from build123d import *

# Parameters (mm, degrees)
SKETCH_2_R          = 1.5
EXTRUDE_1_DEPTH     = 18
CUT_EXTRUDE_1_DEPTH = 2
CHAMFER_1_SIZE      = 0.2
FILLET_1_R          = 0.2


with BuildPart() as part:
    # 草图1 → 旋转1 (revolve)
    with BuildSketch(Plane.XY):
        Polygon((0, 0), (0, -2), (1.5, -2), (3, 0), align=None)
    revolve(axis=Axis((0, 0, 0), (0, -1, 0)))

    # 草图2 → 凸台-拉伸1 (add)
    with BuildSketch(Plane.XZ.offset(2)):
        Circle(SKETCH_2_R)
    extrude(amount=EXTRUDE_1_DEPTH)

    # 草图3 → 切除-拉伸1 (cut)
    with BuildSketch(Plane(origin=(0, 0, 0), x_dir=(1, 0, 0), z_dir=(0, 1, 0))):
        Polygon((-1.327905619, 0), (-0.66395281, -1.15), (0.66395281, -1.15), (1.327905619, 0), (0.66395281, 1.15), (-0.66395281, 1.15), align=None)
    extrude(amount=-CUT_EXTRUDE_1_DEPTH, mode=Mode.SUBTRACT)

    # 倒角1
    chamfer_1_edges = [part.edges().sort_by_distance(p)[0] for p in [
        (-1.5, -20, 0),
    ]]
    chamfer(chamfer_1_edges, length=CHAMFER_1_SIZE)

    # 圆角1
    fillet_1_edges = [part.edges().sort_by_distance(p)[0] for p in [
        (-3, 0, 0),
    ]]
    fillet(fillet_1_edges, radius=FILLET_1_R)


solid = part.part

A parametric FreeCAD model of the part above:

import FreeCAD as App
import Part
import Sketcher

V = App.Vector
Q = App.Units.Quantity


def edges_at(feature, points):
    """Names of the edges that pass closest to the given points."""
    edges = feature.Shape.Edges
    near = lambda p: min(range(len(edges)), key=lambda i: edges[i].distToShape(Part.Vertex(*p))[0])
    return sorted({f"Edge{near(p) + 1}" for p in points})


def add_polygon(sketch, points):
    """Adds a closed chain of lines whose ends are joined by coincident constraints."""
    first, n = sketch.GeometryCount, len(points)
    for a, b in zip(points, points[1:] + points[:1]):
        sketch.addGeometry(Part.LineSegment(App.Vector(*a, 0), App.Vector(*b, 0)), False)
    for i in range(n):
        sketch.addConstraint(Sketcher.Constraint("Coincident", first + i, 2, first + (i + 1) % n, 1))

doc = App.newDocument("Part")
params = doc.addObject("Spreadsheet::Sheet", "Params")
for row, (alias, value) in enumerate([
    ("sketch1_width", "3 mm"),
    ("sketch1_height", "2 mm"),
    ("sketch1_width2", "1.5 mm"),
    ("revolution_angle", "360 deg"),
    ("sketch2_diameter", "3 mm"),
    ("pad1_length", "18 mm"),
    ("pocket1_length", "2 mm"),
    ("chamfer_size", "0.2 mm"),
    ("fillet_radius", "0.2 mm"),
], start=1):
    params.set(f"A{row}", alias)
    params.set(f"B{row}", "=" + value)
    params.setAlias(f"B{row}", alias)

body = doc.addObject("PartDesign::Body", "Body")

sketch1 = body.newObject("Sketcher::SketchObject", "Sketch")
sketch1.AttachmentSupport = (doc.getObject("XY_Plane"), [""])
sketch1.MapMode = "FlatFace"
add_polygon(sketch1, [(0, 0), (0, -2), (1.5, -2), (3, 0)])
sketch1.addConstraint([
    Sketcher.Constraint("Vertical", 0),
    Sketcher.Constraint("Horizontal", 1),
    Sketcher.Constraint("Horizontal", 3),
    Sketcher.Constraint("Coincident", 3, 2, -1, 1),
    Sketcher.Constraint("DistanceX", 3, 2, 3, 1, Q("3 mm")),
    Sketcher.Constraint("DistanceY", 0, 2, 0, 1, Q("2 mm")),
    Sketcher.Constraint("DistanceX", 1, 1, 1, 2, Q("1.5 mm")),
])
sketch1.setExpression("Constraints[8]", "Params.sketch1_width")
sketch1.setExpression("Constraints[9]", "Params.sketch1_height")
sketch1.setExpression("Constraints[10]", "Params.sketch1_width2")
revolution = body.newObject("PartDesign::Revolution", "Revolution")
revolution.Profile = sketch1
revolution.ReferenceAxis = (sketch1, ["V_Axis"])
revolution.setExpression("Angle", "Params.revolution_angle")

sketch2 = body.newObject("Sketcher::SketchObject", "Sketch001")
sketch2.AttachmentSupport = (doc.getObject("XZ_Plane"), [""])
sketch2.MapMode = "FlatFace"
sketch2.AttachmentOffset = App.Placement(V(0, 0, 2), App.Rotation())
sketch2.addGeometry(Part.Circle(V(0, 0, 0), V(0, 0, 1), 1.5), False)
sketch2.addConstraint([
    Sketcher.Constraint("Coincident", 0, 3, -1, 1),
    Sketcher.Constraint("Diameter", 0, Q("3 mm")),
])
sketch2.setExpression("Constraints[1]", "Params.sketch2_diameter")
pad1 = body.newObject("PartDesign::Pad", "Pad")
pad1.Profile = sketch2
pad1.setExpression("Length", "Params.pad1_length")

sketch3 = body.newObject("Sketcher::SketchObject", "Sketch002")
sketch3.AttachmentSupport = (doc.getObject("XZ_Plane"), [""])
sketch3.MapMode = "FlatFace"
add_polygon(sketch3, [(-1.3, 0), (-0.7, 1.1), (0.7, 1.1), (1.3, 0), (0.7, -1.1), (-0.7, -1.1)])
sketch3.addConstraint([
    Sketcher.Constraint("Horizontal", 1),
    Sketcher.Constraint("Horizontal", 4),
    Sketcher.Constraint("Symmetric", 0, 2, 3, 2, -1, 1),
    Sketcher.Constraint("Symmetric", 2, 2, 5, 2, -1, 1),
    Sketcher.Constraint("PointOnObject", 2, 2, -1),
    Sketcher.Constraint("Parallel", 2, 5),
    Sketcher.Constraint("Vertical", 1, 2, 3, 2),
    Sketcher.Constraint("Angle", 0, Q("60 deg")),
    Sketcher.Constraint("DistanceY", 3, 2, 1, 2, Q("2.3 mm")),
    Sketcher.Constraint("DistanceX", 1, 1, 1, 2, Q("1.327906 mm")),
])
pocket1 = body.newObject("PartDesign::Pocket", "Pocket")
pocket1.Profile = sketch3
pocket1.setExpression("Length", "Params.pocket1_length")
pocket1.Reversed = True
doc.recompute()

chamfer = body.newObject("PartDesign::Chamfer", "Chamfer")
chamfer.Base = (pocket1, edges_at(pocket1, [(-1.5, -20, 0)]))
chamfer.setExpression("Size", "Params.chamfer_size")
doc.recompute()

fillet = body.newObject("PartDesign::Fillet", "Fillet")
fillet.Base = (chamfer, edges_at(chamfer, [(-3, 0, 0)]))
fillet.setExpression("Radius", "Params.fillet_radius")

doc.recompute()
